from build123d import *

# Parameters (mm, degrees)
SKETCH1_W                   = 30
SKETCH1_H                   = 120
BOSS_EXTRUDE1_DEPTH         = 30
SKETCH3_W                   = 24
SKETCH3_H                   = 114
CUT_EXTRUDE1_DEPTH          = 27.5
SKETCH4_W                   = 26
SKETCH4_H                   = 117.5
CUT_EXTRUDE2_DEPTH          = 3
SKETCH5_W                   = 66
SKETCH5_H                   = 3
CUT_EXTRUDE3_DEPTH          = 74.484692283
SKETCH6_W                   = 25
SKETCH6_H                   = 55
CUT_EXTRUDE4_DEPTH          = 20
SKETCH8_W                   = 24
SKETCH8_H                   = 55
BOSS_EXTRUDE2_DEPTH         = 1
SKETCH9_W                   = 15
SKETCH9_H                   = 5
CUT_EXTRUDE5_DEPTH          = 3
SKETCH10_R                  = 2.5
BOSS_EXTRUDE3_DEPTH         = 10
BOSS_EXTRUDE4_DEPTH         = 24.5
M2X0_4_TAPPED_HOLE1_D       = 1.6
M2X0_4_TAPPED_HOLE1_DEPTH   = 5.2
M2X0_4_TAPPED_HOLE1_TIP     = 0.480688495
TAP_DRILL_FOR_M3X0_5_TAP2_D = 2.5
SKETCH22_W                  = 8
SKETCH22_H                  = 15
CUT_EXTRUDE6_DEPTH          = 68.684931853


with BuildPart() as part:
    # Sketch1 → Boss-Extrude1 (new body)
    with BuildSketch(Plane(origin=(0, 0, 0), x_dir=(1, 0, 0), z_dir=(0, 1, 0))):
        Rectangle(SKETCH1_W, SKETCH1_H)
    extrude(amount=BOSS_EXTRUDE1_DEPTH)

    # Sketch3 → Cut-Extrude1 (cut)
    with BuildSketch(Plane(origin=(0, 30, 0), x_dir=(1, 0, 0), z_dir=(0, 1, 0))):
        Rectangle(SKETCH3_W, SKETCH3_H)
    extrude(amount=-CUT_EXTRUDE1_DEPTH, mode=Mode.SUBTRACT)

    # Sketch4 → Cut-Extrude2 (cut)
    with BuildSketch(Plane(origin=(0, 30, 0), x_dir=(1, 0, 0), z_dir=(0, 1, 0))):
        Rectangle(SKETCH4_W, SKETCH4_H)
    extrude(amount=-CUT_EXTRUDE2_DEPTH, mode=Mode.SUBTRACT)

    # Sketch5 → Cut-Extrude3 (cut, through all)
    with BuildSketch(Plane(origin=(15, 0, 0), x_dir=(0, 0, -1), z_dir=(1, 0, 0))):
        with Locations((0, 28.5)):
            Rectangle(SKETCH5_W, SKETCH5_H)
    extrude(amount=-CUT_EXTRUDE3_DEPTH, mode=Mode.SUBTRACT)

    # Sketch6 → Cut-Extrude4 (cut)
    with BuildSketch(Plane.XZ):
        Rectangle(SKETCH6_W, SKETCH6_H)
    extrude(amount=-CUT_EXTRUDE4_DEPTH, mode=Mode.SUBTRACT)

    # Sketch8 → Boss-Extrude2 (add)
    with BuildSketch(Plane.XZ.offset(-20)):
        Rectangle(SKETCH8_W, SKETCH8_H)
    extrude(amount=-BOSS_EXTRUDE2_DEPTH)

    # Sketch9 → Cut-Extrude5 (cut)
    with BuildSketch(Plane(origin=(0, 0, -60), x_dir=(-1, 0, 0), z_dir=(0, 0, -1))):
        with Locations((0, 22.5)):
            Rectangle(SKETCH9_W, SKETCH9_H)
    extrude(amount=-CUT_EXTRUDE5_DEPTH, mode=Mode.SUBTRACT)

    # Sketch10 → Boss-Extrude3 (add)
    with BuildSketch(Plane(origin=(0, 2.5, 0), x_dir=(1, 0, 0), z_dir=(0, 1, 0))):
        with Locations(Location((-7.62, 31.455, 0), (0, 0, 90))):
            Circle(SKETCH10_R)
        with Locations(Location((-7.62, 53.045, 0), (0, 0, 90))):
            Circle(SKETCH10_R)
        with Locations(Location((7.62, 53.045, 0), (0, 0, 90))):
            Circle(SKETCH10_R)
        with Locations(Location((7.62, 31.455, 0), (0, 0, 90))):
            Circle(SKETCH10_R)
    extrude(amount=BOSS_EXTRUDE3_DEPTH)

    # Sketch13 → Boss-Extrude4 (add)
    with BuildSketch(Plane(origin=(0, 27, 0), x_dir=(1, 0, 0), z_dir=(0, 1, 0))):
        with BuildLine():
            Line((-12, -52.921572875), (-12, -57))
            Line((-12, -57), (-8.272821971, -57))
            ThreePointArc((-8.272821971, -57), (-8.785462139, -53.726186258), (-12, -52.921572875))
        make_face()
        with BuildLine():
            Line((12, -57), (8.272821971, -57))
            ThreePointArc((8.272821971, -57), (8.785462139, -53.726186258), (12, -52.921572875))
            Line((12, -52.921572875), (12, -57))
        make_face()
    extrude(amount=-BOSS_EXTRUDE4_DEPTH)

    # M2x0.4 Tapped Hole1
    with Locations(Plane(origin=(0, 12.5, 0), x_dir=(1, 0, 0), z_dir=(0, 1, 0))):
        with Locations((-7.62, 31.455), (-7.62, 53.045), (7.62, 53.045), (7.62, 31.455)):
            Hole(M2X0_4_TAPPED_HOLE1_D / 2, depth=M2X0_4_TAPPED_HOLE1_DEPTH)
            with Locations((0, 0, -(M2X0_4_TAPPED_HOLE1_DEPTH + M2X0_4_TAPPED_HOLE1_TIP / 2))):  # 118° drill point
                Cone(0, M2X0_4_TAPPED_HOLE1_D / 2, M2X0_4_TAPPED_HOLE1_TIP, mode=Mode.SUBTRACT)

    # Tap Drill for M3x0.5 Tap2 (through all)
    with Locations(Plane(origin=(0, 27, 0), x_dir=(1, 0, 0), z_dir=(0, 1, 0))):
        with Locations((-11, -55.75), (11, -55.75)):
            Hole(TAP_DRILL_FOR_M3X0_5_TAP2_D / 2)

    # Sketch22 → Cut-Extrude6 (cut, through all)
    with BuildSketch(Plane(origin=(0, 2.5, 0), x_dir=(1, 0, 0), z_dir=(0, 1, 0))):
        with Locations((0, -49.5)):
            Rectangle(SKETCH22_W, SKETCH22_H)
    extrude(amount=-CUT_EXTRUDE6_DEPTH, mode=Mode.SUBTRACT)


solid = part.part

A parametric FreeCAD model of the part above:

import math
import FreeCAD as App
import Part
import Sketcher

V = App.Vector


def add_polygon(sketch, points):
    """Adds a closed chain of lines whose ends are joined by coincident constraints."""
    first, n = sketch.GeometryCount, len(points)
    for a, b in zip(points, points[1:] + points[:1]):
        sketch.addGeometry(Part.LineSegment(App.Vector(*a, 0), App.Vector(*b, 0)), False)
    for i in range(n):
        sketch.addConstraint(Sketcher.Constraint("Coincident", first + i, 2, first + (i + 1) % n, 1))

doc = App.newDocument("Part")
params = doc.addObject("Spreadsheet::Sheet", "Params")
for row, (alias, value) in enumerate([
    ("sketch1_width", "30 mm"),
    ("sketch1_height", "120 mm"),
    ("pad1_length", "30 mm"),
    ("sketch2_width", "24 mm"),
    ("sketch2_height", "114 mm"),
    ("pocket1_length", "27.5 mm"),
    ("sketch3_width", "26 mm"),
    ("sketch3_height", "117.5 mm"),
    ("pocket2_length", "3 mm"),
    ("sketch4_width", "3 mm"),
    ("sketch4_height", "66 mm"),
    ("sketch5_width", "25 mm"),
    ("sketch5_height", "55 mm"),
    ("pocket4_length", "20 mm"),
    ("sketch6_width", "24 mm"),
    ("sketch6_height", "55 mm"),
    ("pad2_length", "1 mm"),
    ("sketch7_width", "15 mm"),
    ("sketch7_height", "5 mm"),
    ("pocket5_length", "3 mm"),
    ("sketch8_diameter", "5 mm"),
    ("pad3_length", "10 mm"),
    ("sketch9_radius", "3 mm"),
    ("pad4_length", "24.5 mm"),
    ("sketch10_diameter", "1.6 mm"),
    ("hole_diameter", "1.6 mm"),
    ("hole_depth", "5.2 mm"),
    ("sketch11_diameter", "2.5 mm"),
    ("hole2_diameter", "2.5 mm"),
    ("sketch12_width", "8 mm"),
    ("sketch12_height", "15 mm"),
], start=1):
    params.set(f"A{row}", alias)
    params.set(f"B{row}", "=" + value)
    params.setAlias(f"B{row}", alias)

body = doc.addObject("PartDesign::Body", "Body")

sketch1 = body.newObject("Sketcher::SketchObject", "Sketch")
sketch1.AttachmentSupport = (doc.getObject("XZ_Plane"), [""])
sketch1.MapMode = "FlatFace"
add_polygon(sketch1, [(-15, -60), (-15, 60), (15, 60), (15, -60)])
sketch1.addConstraint(Sketcher.Constraint("Vertical", 0))
sketch1.addConstraint(Sketcher.Constraint("Horizontal", 1))
sketch1.addConstraint(Sketcher.Constraint("Vertical", 2))
sketch1.addConstraint(Sketcher.Constraint("Horizontal", 3))
sketch1.addConstraint(Sketcher.Constraint("Symmetric", 0, 2, 2, 2, -1, 1))
sketch1.addConstraint(Sketcher.Constraint("DistanceX", 1, 1, 1, 2, 30.0))
sketch1.addConstraint(Sketcher.Constraint("DistanceY", 0, 1, 0, 2, 120.0))
sketch1.setExpression("Constraints[9]", "Params.sketch1_width")
sketch1.setExpression("Constraints[10]", "Params.sketch1_height")
pad1 = body.newObject("PartDesign::Pad", "Pad")
pad1.Profile = sketch1
pad1.setExpression("Length", "Params.pad1_length")
pad1.Reversed = True

sketch2 = body.newObject("Sketcher::SketchObject", "Sketch001")
sketch2.AttachmentSupport = (doc.getObject("XZ_Plane"), [""])
sketch2.MapMode = "FlatFace"
sketch2.AttachmentOffset = App.Placement(V(0, 0, -30), App.Rotation())
add_polygon(sketch2, [(-12, -57), (-12, 57), (12, 57), (12, -57)])
sketch2.addConstraint(Sketcher.Constraint("Vertical", 0))
sketch2.addConstraint(Sketcher.Constraint("Horizontal", 1))
sketch2.addConstraint(Sketcher.Constraint("Vertical", 2))
sketch2.addConstraint(Sketcher.Constraint("Horizontal", 3))
sketch2.addConstraint(Sketcher.Constraint("Symmetric", 0, 2, 2, 2, -1, 1))
sketch2.addConstraint(Sketcher.Constraint("DistanceX", 1, 1, 1, 2, 24.0))
sketch2.addConstraint(Sketcher.Constraint("DistanceY", 0, 1, 0, 2, 114.0))
sketch2.setExpression("Constraints[9]", "Params.sketch2_width")
sketch2.setExpression("Constraints[10]", "Params.sketch2_height")
pocket1 = body.newObject("PartDesign::Pocket", "Pocket")
pocket1.Profile = sketch2
pocket1.setExpression("Length", "Params.pocket1_length")
pocket1.Reversed = True

sketch3 = body.newObject("Sketcher::SketchObject", "Sketch002")
sketch3.AttachmentSupport = (doc.getObject("XZ_Plane"), [""])
sketch3.MapMode = "FlatFace"
sketch3.AttachmentOffset = App.Placement(V(0, 0, -30), App.Rotation())
add_polygon(sketch3, [(-13, -59), (-13, 59), (13, 59), (13, -59)])
sketch3.addConstraint(Sketcher.Constraint("Vertical", 0))
sketch3.addConstraint(Sketcher.Constraint("Horizontal", 1))
sketch3.addConstraint(Sketcher.Constraint("Vertical", 2))
sketch3.addConstraint(Sketcher.Constraint("Horizontal", 3))
sketch3.addConstraint(Sketcher.Constraint("Symmetric", 0, 2, 2, 2, -1, 1))
sketch3.addConstraint(Sketcher.Constraint("DistanceX", 1, 1, 1, 2, 26.0))
sketch3.addConstraint(Sketcher.Constraint("DistanceY", 0, 1, 0, 2, 117.5))
sketch3.setExpression("Constraints[9]", "Params.sketch3_width")
sketch3.setExpression("Constraints[10]", "Params.sketch3_height")
pocket2 = body.newObject("PartDesign::Pocket", "Pocket001")
pocket2.Profile = sketch3
pocket2.setExpression("Length", "Params.pocket2_length")
pocket2.Reversed = True

sketch4 = body.newObject("Sketcher::SketchObject", "Sketch003")
sketch4.AttachmentSupport = (doc.getObject("YZ_Plane"), [""])
sketch4.MapMode = "FlatFace"
sketch4.AttachmentOffset = App.Placement(V(0, 0, 15), App.Rotation())
add_polygon(sketch4, [(30, 33), (27, 33), (27, -33), (30, -33)])
sketch4.addConstraint(Sketcher.Constraint("Horizontal", 0))
sketch4.addConstraint(Sketcher.Constraint("Vertical", 1))
sketch4.addConstraint(Sketcher.Constraint("Horizontal", 2))
sketch4.addConstraint(Sketcher.Constraint("Vertical", 3))
sketch4.addConstraint(Sketcher.Constraint("DistanceX", 0, 2, 0, 1, 3.0))
sketch4.addConstraint(Sketcher.Constraint("DistanceY", 1, 2, 1, 1, 66.0))
sketch4.addConstraint(Sketcher.Constraint("DistanceX", -1, 1, 0, 2, 27.0))
sketch4.addConstraint(Sketcher.Constraint("DistanceY", -1, 1, 0, 2, 33.0))
sketch4.setExpression("Constraints[8]", "Params.sketch4_width")
sketch4.setExpression("Constraints[9]", "Params.sketch4_height")
pocket3 = body.newObject("PartDesign::Pocket", "Pocket002")
pocket3.Profile = sketch4
pocket3.Type = "ThroughAll"

sketch5 = body.newObject("Sketcher::SketchObject", "Sketch004")
sketch5.AttachmentSupport = (doc.getObject("XZ_Plane"), [""])
sketch5.MapMode = "FlatFace"
add_polygon(sketch5, [(-12, 28), (-12, -28), (12, -28), (12, 28)])
sketch5.addConstraint(Sketcher.Constraint("Vertical", 0))
sketch5.addConstraint(Sketcher.Constraint("Horizontal", 1))
sketch5.addConstraint(Sketcher.Constraint("Vertical", 2))
sketch5.addConstraint(Sketcher.Constraint("Horizontal", 3))
sketch5.addConstraint(Sketcher.Constraint("Symmetric", 0, 2, 2, 2, -1, 1))
sketch5.addConstraint(Sketcher.Constraint("DistanceX", 1, 1, 1, 2, 25.0))
sketch5.addConstraint(Sketcher.Constraint("DistanceY", 0, 2, 0, 1, 55.0))
sketch5.setExpression("Constraints[9]", "Params.sketch5_width")
sketch5.setExpression("Constraints[10]", "Params.sketch5_height")
pocket4 = body.newObject("PartDesign::Pocket", "Pocket003")
pocket4.Profile = sketch5
pocket4.setExpression("Length", "Params.pocket4_length")

sketch6 = body.newObject("Sketcher::SketchObject", "Sketch005")
sketch6.AttachmentSupport = (doc.getObject("XZ_Plane"), [""])
sketch6.MapMode = "FlatFace"
sketch6.AttachmentOffset = App.Placement(V(0, 0, -20), App.Rotation())
add_polygon(sketch6, [(-12, 28), (-12, -28), (12, -28), (12, 28)])
sketch6.addConstraint(Sketcher.Constraint("Vertical", 0))
sketch6.addConstraint(Sketcher.Constraint("Horizontal", 1))
sketch6.addConstraint(Sketcher.Constraint("Vertical", 2))
sketch6.addConstraint(Sketcher.Constraint("Horizontal", 3))
sketch6.addConstraint(Sketcher.Constraint("Symmetric", 0, 2, 2, 2, -1, 1))
sketch6.addConstraint(Sketcher.Constraint("DistanceX", 1, 1, 1, 2, 24.0))
sketch6.addConstraint(Sketcher.Constraint("DistanceY", 0, 2, 0, 1, 55.0))
sketch6.setExpression("Constraints[9]", "Params.sketch6_width")
sketch6.setExpression("Constraints[10]", "Params.sketch6_height")
pad2 = body.newObject("PartDesign::Pad", "Pad001")
pad2.Profile = sketch6
pad2.setExpression("Length", "Params.pad2_length")
pad2.Reversed = True

sketch7 = body.newObject("Sketcher::SketchObject", "Sketch006")
sketch7.AttachmentSupport = (doc.getObject("XY_Plane"), [""])
sketch7.MapMode = "FlatFace"
sketch7.AttachmentOffset = App.Placement(V(0, 0, -60), App.Rotation())
add_polygon(sketch7, [(8, 25), (8, 20), (-8, 20), (-8, 25)])
sketch7.addConstraint(Sketcher.Constraint("Vertical", 0))
sketch7.addConstraint(Sketcher.Constraint("Horizontal", 1))
sketch7.addConstraint(Sketcher.Constraint("Vertical", 2))
sketch7.addConstraint(Sketcher.Constraint("Horizontal", 3))
sketch7.addConstraint(Sketcher.Constraint("DistanceX", 1, 2, 1, 1, 15.0))
sketch7.addConstraint(Sketcher.Constraint("DistanceY", 0, 2, 0, 1, 5.0))
sketch7.addConstraint(Sketcher.Constraint("DistanceY", -1, 1, 0, 2, 20.0))
sketch7.addConstraint(Sketcher.Constraint("DistanceX", -1, 1, 0, 2, 7.5))
sketch7.setExpression("Constraints[8]", "Params.sketch7_width")
sketch7.setExpression("Constraints[9]", "Params.sketch7_height")
pocket5 = body.newObject("PartDesign::Pocket", "Pocket004")
pocket5.Profile = sketch7
pocket5.setExpression("Length", "Params.pocket5_length")
pocket5.Reversed = True

sketch8 = body.newObject("Sketcher::SketchObject", "Sketch007")
sketch8.AttachmentSupport = (doc.getObject("XZ_Plane"), [""])
sketch8.MapMode = "FlatFace"
sketch8.AttachmentOffset = App.Placement(V(0, 0, -2.5), App.Rotation())
sketch8.addGeometry(Part.Circle(V(-7.6, -31.5, 0), V(0, 0, 1), 2.5), False)
sketch8.addGeometry(Part.Circle(V(-7.6, -53, 0), V(0, 0, 1), 2.5), False)
sketch8.addGeometry(Part.Circle(V(7.6, -53, 0), V(0, 0, 1), 2.5), False)
sketch8.addGeometry(Part.Circle(V(7.6, -31.5, 0), V(0, 0, 1), 2.5), False)
sketch8.addConstraint(Sketcher.Constraint("Equal", 0, 1))
sketch8.addConstraint(Sketcher.Constraint("Equal", 1, 2))
sketch8.addConstraint(Sketcher.Constraint("Equal", 2, 3))
sketch8.addConstraint(Sketcher.Constraint("Symmetric", 1, 3, 2, 3, -2))
sketch8.addConstraint(Sketcher.Constraint("Symmetric", 0, 3, 3, 3, -2))
sketch8.addConstraint(Sketcher.Constraint("Vertical", 0, 3, 1, 3))
sketch8.addConstraint(Sketcher.Constraint("Diameter", 0, 5.0))
sketch8.addConstraint(Sketcher.Constraint("DistanceX", 0, 3, -1, 1, 7.62))
sketch8.addConstraint(Sketcher.Constraint("DistanceY", 1, 3, 0, 3, 21.59))
sketch8.addConstraint(Sketcher.Constraint("DistanceY", 0, 3, -1, 1, 31.455))
sketch8.setExpression("Constraints[6]", "Params.sketch8_diameter")
pad3 = body.newObject("PartDesign::Pad", "Pad002")
pad3.Profile = sketch8
pad3.setExpression("Length", "Params.pad3_length")
pad3.Reversed = True

sketch9 = body.newObject("Sketcher::SketchObject", "Sketch008")
sketch9.AttachmentSupport = (doc.getObject("XZ_Plane"), [""])
sketch9.MapMode = "FlatFace"
sketch9.AttachmentOffset = App.Placement(V(0, 0, -27), App.Rotation())
sketch9.addGeometry(Part.LineSegment(V(-12, 52.9, 0), V(-12, 57, 0)), False)
sketch9.addGeometry(Part.LineSegment(V(-12, 57, 0), V(-8.3, 57, 0)), False)
sketch9.addGeometry(Part.ArcOfCircle(Part.Circle(V(-11, 55.8, 0), V(0, 0, 1), 3), math.radians(-109), math.radians(25)), False)
sketch9.addGeometry(Part.LineSegment(V(8.3, 57, 0), V(12, 57, 0)), False)
sketch9.addGeometry(Part.LineSegment(V(12, 57, 0), V(12, 52.9, 0)), False)
sketch9.addGeometry(Part.ArcOfCircle(Part.Circle(V(11, 55.8, 0), V(0, 0, 1), 3), math.radians(155), math.radians(289)), False)
sketch9.addConstraint(Sketcher.Constraint("Coincident", 0, 2, 1, 1))
sketch9.addConstraint(Sketcher.Constraint("Coincident", 1, 2, 2, 2))
sketch9.addConstraint(Sketcher.Constraint("Coincident", 2, 1, 0, 1))
sketch9.addConstraint(Sketcher.Constraint("Coincident", 3, 2, 4, 1))
sketch9.addConstraint(Sketcher.Constraint("Coincident", 4, 2, 5, 2))
sketch9.addConstraint(Sketcher.Constraint("Coincident", 5, 1, 3, 1))
sketch9.addConstraint(Sketcher.Constraint("Vertical", 0))
sketch9.addConstraint(Sketcher.Constraint("Horizontal", 1))
sketch9.addConstraint(Sketcher.Constraint("Horizontal", 3))
sketch9.addConstraint(Sketcher.Constraint("Vertical", 4))
sketch9.addConstraint(Sketcher.Constraint("Equal", 2, 5))
sketch9.addConstraint(Sketcher.Constraint("Symmetric", 2, 3, 5, 3, -2))
sketch9.addConstraint(Sketcher.Constraint("Symmetric", 0, 2, 3, 2, -2))
sketch9.addConstraint(Sketcher.Constraint("Radius", 2, 3.0))
sketch9.addConstraint(Sketcher.Constraint("DistanceX", 2, 3, -1, 1, 11.0))
sketch9.addConstraint(Sketcher.Constraint("DistanceX", 0, 2, -1, 1, 12.0))
sketch9.addConstraint(Sketcher.Constraint("DistanceY", -1, 1, 0, 2, 57.0))
sketch9.addConstraint(Sketcher.Constraint("DistanceY", -1, 1, 2, 3, 55.75))
sketch9.setExpression("Constraints[13]", "Params.sketch9_radius")
pad4 = body.newObject("PartDesign::Pad", "Pad003")
pad4.Profile = sketch9
pad4.setExpression("Length", "Params.pad4_length")

sketch10 = body.newObject("Sketcher::SketchObject", "Sketch009")
sketch10.AttachmentSupport = (doc.getObject("XZ_Plane"), [""])
sketch10.MapMode = "FlatFace"
sketch10.AttachmentOffset = App.Placement(V(0, 0, -12.5), App.Rotation())
sketch10.addGeometry(Part.Circle(V(-7.6, -31.5, 0), V(0, 0, 1), 0.8), False)
sketch10.addGeometry(Part.Circle(V(-7.6, -53, 0), V(0, 0, 1), 0.8), False)
sketch10.addGeometry(Part.Circle(V(7.6, -53, 0), V(0, 0, 1), 0.8), False)
sketch10.addGeometry(Part.Circle(V(7.6, -31.5, 0), V(0, 0, 1), 0.8), False)
sketch10.addConstraint(Sketcher.Constraint("Equal", 0, 1))
sketch10.addConstraint(Sketcher.Constraint("Equal", 1, 2))
sketch10.addConstraint(Sketcher.Constraint("Equal", 2, 3))
sketch10.addConstraint(Sketcher.Constraint("Symmetric", 1, 3, 2, 3, -2))
sketch10.addConstraint(Sketcher.Constraint("Symmetric", 0, 3, 3, 3, -2))
sketch10.addConstraint(Sketcher.Constraint("Vertical", 0, 3, 1, 3))
sketch10.addConstraint(Sketcher.Constraint("Diameter", 0, 1.6))
sketch10.addConstraint(Sketcher.Constraint("DistanceX", 0, 3, -1, 1, 7.62))
sketch10.addConstraint(Sketcher.Constraint("DistanceY", 1, 3, 0, 3, 21.59))
sketch10.addConstraint(Sketcher.Constraint("DistanceY", 0, 3, -1, 1, 31.455))
sketch10.setExpression("Constraints[6]", "Params.sketch10_diameter")
doc.recompute()
hole = body.newObject("PartDesign::Hole", "Hole")
hole.Profile = sketch10
hole.ThreadType = "None"
hole.setExpression("Diameter", "Params.hole_diameter")
hole.DepthType = "Dimension"
hole.setExpression("Depth", "Params.hole_depth")
hole.DrillPoint = "Angled"
hole.DrillPointAngle = 118
hole.Reversed = True

sketch11 = body.newObject("Sketcher::SketchObject", "Sketch010")
sketch11.AttachmentSupport = (doc.getObject("XZ_Plane"), [""])
sketch11.MapMode = "FlatFace"
sketch11.AttachmentOffset = App.Placement(V(0, 0, -27), App.Rotation())
sketch11.addGeometry(Part.Circle(V(-11, 55.8, 0), V(0, 0, 1), 1.2), False)
sketch11.addGeometry(Part.Circle(V(11, 55.8, 0), V(0, 0, 1), 1.2), False)
sketch11.addConstraint(Sketcher.Constraint("Equal", 0, 1))
sketch11.addConstraint(Sketcher.Constraint("Symmetric", 0, 3, 1, 3, -2))
sketch11.addConstraint(Sketcher.Constraint("Diameter", 0, 2.5))
sketch11.addConstraint(Sketcher.Constraint("DistanceX", 0, 3, -1, 1, 11.0))
sketch11.addConstraint(Sketcher.Constraint("DistanceY", -1, 1, 0, 3, 55.75))
sketch11.setExpression("Constraints[2]", "Params.sketch11_diameter")
doc.recompute()
hole2 = body.newObject("PartDesign::Hole", "Hole001")
hole2.Profile = sketch11
hole2.ThreadType = "None"
hole2.setExpression("Diameter", "Params.hole2_diameter")
hole2.DepthType = "ThroughAll"
hole2.Reversed = True

sketch12 = body.newObject("Sketcher::SketchObject", "Sketch011")
sketch12.AttachmentSupport = (doc.getObject("XZ_Plane"), [""])
sketch12.MapMode = "FlatFace"
sketch12.AttachmentOffset = App.Placement(V(0, 0, -2.5), App.Rotation())
add_polygon(sketch12, [(-4, 42), (-4, 57), (4, 57), (4, 42)])
sketch12.addConstraint(Sketcher.Constraint("Vertical", 0))
sketch12.addConstraint(Sketcher.Constraint("Horizontal", 1))
sketch12.addConstraint(Sketcher.Constraint("Vertical", 2))
sketch12.addConstraint(Sketcher.Constraint("Horizontal", 3))
sketch12.addConstraint(Sketcher.Constraint("DistanceX", 1, 1, 1, 2, 8.0))
sketch12.addConstraint(Sketcher.Constraint("DistanceY", 0, 1, 0, 2, 15.0))
sketch12.addConstraint(Sketcher.Constraint("DistanceX", 0, 2, -1, 1, 4.0))
sketch12.addConstraint(Sketcher.Constraint("DistanceY", -1, 1, 0, 2, 57.0))
sketch12.setExpression("Constraints[8]", "Params.sketch12_width")
sketch12.setExpression("Constraints[9]", "Params.sketch12_height")
pocket6 = body.newObject("PartDesign::Pocket", "Pocket005")
pocket6.Profile = sketch12
pocket6.Type = "ThroughAll"
pocket6.Reversed = True

doc.recompute()
